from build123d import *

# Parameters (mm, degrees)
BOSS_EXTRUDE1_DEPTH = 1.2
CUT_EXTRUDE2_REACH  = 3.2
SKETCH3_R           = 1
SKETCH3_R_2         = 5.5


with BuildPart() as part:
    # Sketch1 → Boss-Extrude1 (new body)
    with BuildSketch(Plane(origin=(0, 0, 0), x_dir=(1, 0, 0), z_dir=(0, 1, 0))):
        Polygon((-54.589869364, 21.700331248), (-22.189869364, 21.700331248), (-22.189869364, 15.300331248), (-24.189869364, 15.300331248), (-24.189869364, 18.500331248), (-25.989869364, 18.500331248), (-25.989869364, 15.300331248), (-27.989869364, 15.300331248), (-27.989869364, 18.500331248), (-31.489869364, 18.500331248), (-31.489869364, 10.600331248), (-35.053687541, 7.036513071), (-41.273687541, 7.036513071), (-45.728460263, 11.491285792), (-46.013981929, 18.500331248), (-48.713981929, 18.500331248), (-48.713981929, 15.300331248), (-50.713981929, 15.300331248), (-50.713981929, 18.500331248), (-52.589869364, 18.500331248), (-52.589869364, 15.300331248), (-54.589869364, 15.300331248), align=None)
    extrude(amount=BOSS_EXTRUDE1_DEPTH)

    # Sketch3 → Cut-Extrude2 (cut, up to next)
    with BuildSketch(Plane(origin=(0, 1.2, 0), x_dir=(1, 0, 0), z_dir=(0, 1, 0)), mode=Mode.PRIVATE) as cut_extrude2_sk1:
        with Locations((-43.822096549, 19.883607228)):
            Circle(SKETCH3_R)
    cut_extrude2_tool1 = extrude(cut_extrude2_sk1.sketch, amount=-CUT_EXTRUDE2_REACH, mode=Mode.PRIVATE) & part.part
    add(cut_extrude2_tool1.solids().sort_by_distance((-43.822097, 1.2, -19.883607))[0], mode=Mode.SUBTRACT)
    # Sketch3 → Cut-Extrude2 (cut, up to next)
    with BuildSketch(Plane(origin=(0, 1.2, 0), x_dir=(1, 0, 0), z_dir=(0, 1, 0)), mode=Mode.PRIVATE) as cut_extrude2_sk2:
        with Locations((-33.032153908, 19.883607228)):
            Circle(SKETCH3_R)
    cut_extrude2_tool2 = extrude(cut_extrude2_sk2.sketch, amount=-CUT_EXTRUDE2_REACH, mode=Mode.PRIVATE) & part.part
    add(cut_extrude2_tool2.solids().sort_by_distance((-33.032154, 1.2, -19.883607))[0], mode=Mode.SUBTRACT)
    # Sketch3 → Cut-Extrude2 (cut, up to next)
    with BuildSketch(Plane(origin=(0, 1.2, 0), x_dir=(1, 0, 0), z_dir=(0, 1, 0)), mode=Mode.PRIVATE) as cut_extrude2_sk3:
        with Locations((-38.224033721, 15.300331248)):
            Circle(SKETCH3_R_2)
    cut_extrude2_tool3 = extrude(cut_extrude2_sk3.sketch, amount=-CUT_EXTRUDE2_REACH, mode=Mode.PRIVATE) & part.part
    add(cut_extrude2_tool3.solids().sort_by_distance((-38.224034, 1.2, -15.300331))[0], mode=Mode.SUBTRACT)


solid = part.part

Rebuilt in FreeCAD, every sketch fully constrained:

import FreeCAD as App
import Part
import Sketcher
Q = App.Units.Quantity

doc = App.newDocument("Part")
body = doc.addObject("PartDesign::Body", "Body")

sketch1 = body.newObject("Sketcher::SketchObject", "Sketch")
sketch1.AttachmentSupport = (doc.getObject("XZ_Plane"), [""])
sketch1.MapMode = "FlatFace"
sketch1.addGeometry(Part.LineSegment(App.Vector(-22.2, -21.7, 0), App.Vector(-54.6, -21.7, 0)), False)
sketch1.addGeometry(Part.LineSegment(App.Vector(-54.6, -21.7, 0), App.Vector(-54.6, -15.3, 0)), False)
sketch1.addGeometry(Part.LineSegment(App.Vector(-54.6, -15.3, 0), App.Vector(-52.6, -15.3, 0)), False)
sketch1.addGeometry(Part.LineSegment(App.Vector(-52.6, -15.3, 0), App.Vector(-52.6, -18.5, 0)), False)
sketch1.addGeometry(Part.LineSegment(App.Vector(-52.6, -18.5, 0), App.Vector(-50.7, -18.5, 0)), False)
sketch1.addGeometry(Part.LineSegment(App.Vector(-50.7, -18.5, 0), App.Vector(-50.7, -15.3, 0)), False)
sketch1.addGeometry(Part.LineSegment(App.Vector(-50.7, -15.3, 0), App.Vector(-48.7, -15.3, 0)), False)
sketch1.addGeometry(Part.LineSegment(App.Vector(-48.7, -15.3, 0), App.Vector(-48.7, -18.5, 0)), False)
sketch1.addGeometry(Part.LineSegment(App.Vector(-48.7, -18.5, 0), App.Vector(-46, -18.5, 0)), False)
sketch1.addGeometry(Part.LineSegment(App.Vector(-46, -18.5, 0), App.Vector(-45.7, -11.5, 0)), False)
sketch1.addGeometry(Part.LineSegment(App.Vector(-45.7, -11.5, 0), App.Vector(-41.3, -7, 0)), False)
sketch1.addGeometry(Part.LineSegment(App.Vector(-41.3, -7, 0), App.Vector(-35.1, -7, 0)), False)
sketch1.addGeometry(Part.LineSegment(App.Vector(-35.1, -7, 0), App.Vector(-31.5, -10.6, 0)), False)
sketch1.addGeometry(Part.LineSegment(App.Vector(-31.5, -10.6, 0), App.Vector(-31.5, -18.5, 0)), False)
sketch1.addGeometry(Part.LineSegment(App.Vector(-31.5, -18.5, 0), App.Vector(-28, -18.5, 0)), False)
sketch1.addGeometry(Part.LineSegment(App.Vector(-28, -18.5, 0), App.Vector(-28, -15.3, 0)), False)
sketch1.addGeometry(Part.LineSegment(App.Vector(-28, -15.3, 0), App.Vector(-26, -15.3, 0)), False)
sketch1.addGeometry(Part.LineSegment(App.Vector(-26, -15.3, 0), App.Vector(-26, -18.5, 0)), False)
sketch1.addGeometry(Part.LineSegment(App.Vector(-26, -18.5, 0), App.Vector(-24.2, -18.5, 0)), False)
sketch1.addGeometry(Part.LineSegment(App.Vector(-24.2, -18.5, 0), App.Vector(-24.2, -15.3, 0)), False)
sketch1.addGeometry(Part.LineSegment(App.Vector(-24.2, -15.3, 0), App.Vector(-22.2, -15.3, 0)), False)
sketch1.addGeometry(Part.LineSegment(App.Vector(-22.2, -15.3, 0), App.Vector(-22.2, -21.7, 0)), False)
sketch1.addConstraint(Sketcher.Constraint("Coincident", 0, 2, 1, 1))
sketch1.addConstraint(Sketcher.Constraint("Coincident", 1, 2, 2, 1))
sketch1.addConstraint(Sketcher.Constraint("Coincident", 2, 2, 3, 1))
sketch1.addConstraint(Sketcher.Constraint("Coincident", 3, 2, 4, 1))
sketch1.addConstraint(Sketcher.Constraint("Coincident", 4, 2, 5, 1))
sketch1.addConstraint(Sketcher.Constraint("Coincident", 5, 2, 6, 1))
sketch1.addConstraint(Sketcher.Constraint("Coincident", 6, 2, 7, 1))
sketch1.addConstraint(Sketcher.Constraint("Coincident", 7, 2, 8, 1))
sketch1.addConstraint(Sketcher.Constraint("Coincident", 8, 2, 9, 1))
sketch1.addConstraint(Sketcher.Constraint("Coincident", 9, 2, 10, 1))
sketch1.addConstraint(Sketcher.Constraint("Coincident", 10, 2, 11, 1))
sketch1.addConstraint(Sketcher.Constraint("Coincident", 11, 2, 12, 1))
sketch1.addConstraint(Sketcher.Constraint("Coincident", 12, 2, 13, 1))
sketch1.addConstraint(Sketcher.Constraint("Coincident", 13, 2, 14, 1))
sketch1.addConstraint(Sketcher.Constraint("Coincident", 14, 2, 15, 1))
sketch1.addConstraint(Sketcher.Constraint("Coincident", 15, 2, 16, 1))
sketch1.addConstraint(Sketcher.Constraint("Coincident", 16, 2, 17, 1))
sketch1.addConstraint(Sketcher.Constraint("Coincident", 17, 2, 18, 1))
sketch1.addConstraint(Sketcher.Constraint("Coincident", 18, 2, 19, 1))
sketch1.addConstraint(Sketcher.Constraint("Coincident", 19, 2, 20, 1))
sketch1.addConstraint(Sketcher.Constraint("Coincident", 20, 2, 21, 1))
sketch1.addConstraint(Sketcher.Constraint("Coincident", 21, 2, 0, 1))
sketch1.addConstraint(Sketcher.Constraint("Horizontal", 0))
sketch1.addConstraint(Sketcher.Constraint("Vertical", 1))
sketch1.addConstraint(Sketcher.Constraint("Horizontal", 2))
sketch1.addConstraint(Sketcher.Constraint("Vertical", 3))
sketch1.addConstraint(Sketcher.Constraint("Horizontal", 4))
sketch1.addConstraint(Sketcher.Constraint("Vertical", 5))
sketch1.addConstraint(Sketcher.Constraint("Horizontal", 6))
sketch1.addConstraint(Sketcher.Constraint("Vertical", 7))
sketch1.addConstraint(Sketcher.Constraint("Horizontal", 8))
sketch1.addConstraint(Sketcher.Constraint("Horizontal", 11))
sketch1.addConstraint(Sketcher.Constraint("Vertical", 13))
sketch1.addConstraint(Sketcher.Constraint("Horizontal", 14))
sketch1.addConstraint(Sketcher.Constraint("Vertical", 15))
sketch1.addConstraint(Sketcher.Constraint("Horizontal", 16))
sketch1.addConstraint(Sketcher.Constraint("Vertical", 17))
sketch1.addConstraint(Sketcher.Constraint("Horizontal", 18))
sketch1.addConstraint(Sketcher.Constraint("Vertical", 19))
sketch1.addConstraint(Sketcher.Constraint("Horizontal", 20))
sketch1.addConstraint(Sketcher.Constraint("Vertical", 21))
sketch1.addConstraint(Sketcher.Constraint("Perpendicular", 10, 12))
sketch1.addConstraint(Sketcher.Constraint("Horizontal", 2, 2, 5, 2))
sketch1.addConstraint(Sketcher.Constraint("Horizontal", 4, 2, 7, 2))
sketch1.addConstraint(Sketcher.Constraint("Horizontal", 8, 2, 13, 2))
sketch1.addConstraint(Sketcher.Constraint("Horizontal", 6, 2, 15, 2))
sketch1.addConstraint(Sketcher.Constraint("Horizontal", 14, 2, 17, 2))
sketch1.addConstraint(Sketcher.Constraint("Horizontal", 16, 2, 19, 2))
sketch1.addConstraint(Sketcher.Constraint("Equal", 2, 6))
sketch1.addConstraint(Sketcher.Constraint("Equal", 6, 16))
sketch1.addConstraint(Sketcher.Constraint("Equal", 16, 20))
sketch1.addConstraint(Sketcher.Constraint("DistanceX", 2, 1, 2, 2, Q("2 mm")))
sketch1.addConstraint(Sketcher.Constraint("Angle", 10, Q("45 deg")))
sketch1.addConstraint(Sketcher.Constraint("DistanceX", 0, 2, 0, 1, Q("32.4 mm")))
sketch1.addConstraint(Sketcher.Constraint("DistanceX", 8, 1, 8, 2, Q("2.7 mm")))
sketch1.addConstraint(Sketcher.Constraint("DistanceX", 14, 1, 14, 2, Q("3.5 mm")))
sketch1.addConstraint(Sketcher.Constraint("DistanceX", 18, 1, 18, 2, Q("1.8 mm")))
sketch1.addConstraint(Sketcher.Constraint("DistanceY", 1, 1, 1, 2, Q("6.4 mm")))
sketch1.addConstraint(Sketcher.Constraint("DistanceY", 3, 2, 3, 1, Q("3.2 mm")))
sketch1.addConstraint(Sketcher.Constraint("DistanceY", 13, 2, 13, 1, Q("7.9 mm")))
sketch1.addConstraint(Sketcher.Constraint("Distance", 10, Q("6.3 mm")))
sketch1.addConstraint(Sketcher.Constraint("DistanceX", 11, 1, 11, 2, Q("6.22 mm")))
sketch1.addConstraint(Sketcher.Constraint("Distance", 12, Q("5.04 mm")))
sketch1.addConstraint(Sketcher.Constraint("Distance", 9, Q("7.014859 mm")))
sketch1.addConstraint(Sketcher.Constraint("DistanceX", 0, 2, -1, 1, Q("54.589869 mm")))
sketch1.addConstraint(Sketcher.Constraint("DistanceY", 0, 2, -1, 1, Q("21.700331 mm")))
pad1 = body.newObject("PartDesign::Pad", "Pad")
pad1.Profile = sketch1
pad1.Length = 1.2
pad1.Reversed = True

sketch2 = body.newObject("Sketcher::SketchObject", "Sketch001")
sketch2.AttachmentSupport = (doc.getObject("XZ_Plane"), [""])
sketch2.MapMode = "FlatFace"
sketch2.AttachmentOffset = App.Placement(App.Vector(0, 0, -1.2), App.Rotation())
sketch2.addGeometry(Part.Circle(App.Vector(-43.8, -19.9, 0), App.Vector(0, 0, 1), 1), False)
sketch2.addConstraint(Sketcher.Constraint("Diameter", 0, Q("2 mm")))
sketch2.addConstraint(Sketcher.Constraint("DistanceX", 0, 3, -1, 1, Q("43.822097 mm")))
sketch2.addConstraint(Sketcher.Constraint("DistanceY", 0, 3, -1, 1, Q("19.883607 mm")))
pocket1 = body.newObject("PartDesign::Pocket", "Pocket")
pocket1.Profile = sketch2
pocket1.Type = "UpToFirst"
pocket1.Reversed = True

sketch3 = body.newObject("Sketcher::SketchObject", "Sketch002")
sketch3.AttachmentSupport = (doc.getObject("XZ_Plane"), [""])
sketch3.MapMode = "FlatFace"
sketch3.AttachmentOffset = App.Placement(App.Vector(0, 0, -1.2), App.Rotation())
sketch3.addGeometry(Part.Circle(App.Vector(-33, -19.9, 0), App.Vector(0, 0, 1), 1), False)
sketch3.addConstraint(Sketcher.Constraint("Diameter", 0, Q("2 mm")))
sketch3.addConstraint(Sketcher.Constraint("DistanceX", 0, 3, -1, 1, Q("33.032154 mm")))
sketch3.addConstraint(Sketcher.Constraint("DistanceY", 0, 3, -1, 1, Q("19.883607 mm")))
pocket2 = body.newObject("PartDesign::Pocket", "Pocket001")
pocket2.Profile = sketch3
pocket2.Type = "UpToFirst"
pocket2.Reversed = True

sketch4 = body.newObject("Sketcher::SketchObject", "Sketch003")
sketch4.AttachmentSupport = (doc.getObject("XZ_Plane"), [""])
sketch4.MapMode = "FlatFace"
sketch4.AttachmentOffset = App.Placement(App.Vector(0, 0, -1.2), App.Rotation())
sketch4.addGeometry(Part.Circle(App.Vector(-38, -15, 0), App.Vector(0, 0, 1), 6), False)
sketch4.addConstraint(Sketcher.Constraint("Diameter", 0, Q("11 mm")))
sketch4.addConstraint(Sketcher.Constraint("DistanceY", 0, 3, -1, 1, Q("15.300331 mm")))
sketch4.addConstraint(Sketcher.Constraint("DistanceX", 0, 3, -1, 1, Q("38.224034 mm")))
pocket3 = body.newObject("PartDesign::Pocket", "Pocket002")
pocket3.Profile = sketch4
pocket3.Type = "UpToFirst"
pocket3.Reversed = True

doc.recompute()
